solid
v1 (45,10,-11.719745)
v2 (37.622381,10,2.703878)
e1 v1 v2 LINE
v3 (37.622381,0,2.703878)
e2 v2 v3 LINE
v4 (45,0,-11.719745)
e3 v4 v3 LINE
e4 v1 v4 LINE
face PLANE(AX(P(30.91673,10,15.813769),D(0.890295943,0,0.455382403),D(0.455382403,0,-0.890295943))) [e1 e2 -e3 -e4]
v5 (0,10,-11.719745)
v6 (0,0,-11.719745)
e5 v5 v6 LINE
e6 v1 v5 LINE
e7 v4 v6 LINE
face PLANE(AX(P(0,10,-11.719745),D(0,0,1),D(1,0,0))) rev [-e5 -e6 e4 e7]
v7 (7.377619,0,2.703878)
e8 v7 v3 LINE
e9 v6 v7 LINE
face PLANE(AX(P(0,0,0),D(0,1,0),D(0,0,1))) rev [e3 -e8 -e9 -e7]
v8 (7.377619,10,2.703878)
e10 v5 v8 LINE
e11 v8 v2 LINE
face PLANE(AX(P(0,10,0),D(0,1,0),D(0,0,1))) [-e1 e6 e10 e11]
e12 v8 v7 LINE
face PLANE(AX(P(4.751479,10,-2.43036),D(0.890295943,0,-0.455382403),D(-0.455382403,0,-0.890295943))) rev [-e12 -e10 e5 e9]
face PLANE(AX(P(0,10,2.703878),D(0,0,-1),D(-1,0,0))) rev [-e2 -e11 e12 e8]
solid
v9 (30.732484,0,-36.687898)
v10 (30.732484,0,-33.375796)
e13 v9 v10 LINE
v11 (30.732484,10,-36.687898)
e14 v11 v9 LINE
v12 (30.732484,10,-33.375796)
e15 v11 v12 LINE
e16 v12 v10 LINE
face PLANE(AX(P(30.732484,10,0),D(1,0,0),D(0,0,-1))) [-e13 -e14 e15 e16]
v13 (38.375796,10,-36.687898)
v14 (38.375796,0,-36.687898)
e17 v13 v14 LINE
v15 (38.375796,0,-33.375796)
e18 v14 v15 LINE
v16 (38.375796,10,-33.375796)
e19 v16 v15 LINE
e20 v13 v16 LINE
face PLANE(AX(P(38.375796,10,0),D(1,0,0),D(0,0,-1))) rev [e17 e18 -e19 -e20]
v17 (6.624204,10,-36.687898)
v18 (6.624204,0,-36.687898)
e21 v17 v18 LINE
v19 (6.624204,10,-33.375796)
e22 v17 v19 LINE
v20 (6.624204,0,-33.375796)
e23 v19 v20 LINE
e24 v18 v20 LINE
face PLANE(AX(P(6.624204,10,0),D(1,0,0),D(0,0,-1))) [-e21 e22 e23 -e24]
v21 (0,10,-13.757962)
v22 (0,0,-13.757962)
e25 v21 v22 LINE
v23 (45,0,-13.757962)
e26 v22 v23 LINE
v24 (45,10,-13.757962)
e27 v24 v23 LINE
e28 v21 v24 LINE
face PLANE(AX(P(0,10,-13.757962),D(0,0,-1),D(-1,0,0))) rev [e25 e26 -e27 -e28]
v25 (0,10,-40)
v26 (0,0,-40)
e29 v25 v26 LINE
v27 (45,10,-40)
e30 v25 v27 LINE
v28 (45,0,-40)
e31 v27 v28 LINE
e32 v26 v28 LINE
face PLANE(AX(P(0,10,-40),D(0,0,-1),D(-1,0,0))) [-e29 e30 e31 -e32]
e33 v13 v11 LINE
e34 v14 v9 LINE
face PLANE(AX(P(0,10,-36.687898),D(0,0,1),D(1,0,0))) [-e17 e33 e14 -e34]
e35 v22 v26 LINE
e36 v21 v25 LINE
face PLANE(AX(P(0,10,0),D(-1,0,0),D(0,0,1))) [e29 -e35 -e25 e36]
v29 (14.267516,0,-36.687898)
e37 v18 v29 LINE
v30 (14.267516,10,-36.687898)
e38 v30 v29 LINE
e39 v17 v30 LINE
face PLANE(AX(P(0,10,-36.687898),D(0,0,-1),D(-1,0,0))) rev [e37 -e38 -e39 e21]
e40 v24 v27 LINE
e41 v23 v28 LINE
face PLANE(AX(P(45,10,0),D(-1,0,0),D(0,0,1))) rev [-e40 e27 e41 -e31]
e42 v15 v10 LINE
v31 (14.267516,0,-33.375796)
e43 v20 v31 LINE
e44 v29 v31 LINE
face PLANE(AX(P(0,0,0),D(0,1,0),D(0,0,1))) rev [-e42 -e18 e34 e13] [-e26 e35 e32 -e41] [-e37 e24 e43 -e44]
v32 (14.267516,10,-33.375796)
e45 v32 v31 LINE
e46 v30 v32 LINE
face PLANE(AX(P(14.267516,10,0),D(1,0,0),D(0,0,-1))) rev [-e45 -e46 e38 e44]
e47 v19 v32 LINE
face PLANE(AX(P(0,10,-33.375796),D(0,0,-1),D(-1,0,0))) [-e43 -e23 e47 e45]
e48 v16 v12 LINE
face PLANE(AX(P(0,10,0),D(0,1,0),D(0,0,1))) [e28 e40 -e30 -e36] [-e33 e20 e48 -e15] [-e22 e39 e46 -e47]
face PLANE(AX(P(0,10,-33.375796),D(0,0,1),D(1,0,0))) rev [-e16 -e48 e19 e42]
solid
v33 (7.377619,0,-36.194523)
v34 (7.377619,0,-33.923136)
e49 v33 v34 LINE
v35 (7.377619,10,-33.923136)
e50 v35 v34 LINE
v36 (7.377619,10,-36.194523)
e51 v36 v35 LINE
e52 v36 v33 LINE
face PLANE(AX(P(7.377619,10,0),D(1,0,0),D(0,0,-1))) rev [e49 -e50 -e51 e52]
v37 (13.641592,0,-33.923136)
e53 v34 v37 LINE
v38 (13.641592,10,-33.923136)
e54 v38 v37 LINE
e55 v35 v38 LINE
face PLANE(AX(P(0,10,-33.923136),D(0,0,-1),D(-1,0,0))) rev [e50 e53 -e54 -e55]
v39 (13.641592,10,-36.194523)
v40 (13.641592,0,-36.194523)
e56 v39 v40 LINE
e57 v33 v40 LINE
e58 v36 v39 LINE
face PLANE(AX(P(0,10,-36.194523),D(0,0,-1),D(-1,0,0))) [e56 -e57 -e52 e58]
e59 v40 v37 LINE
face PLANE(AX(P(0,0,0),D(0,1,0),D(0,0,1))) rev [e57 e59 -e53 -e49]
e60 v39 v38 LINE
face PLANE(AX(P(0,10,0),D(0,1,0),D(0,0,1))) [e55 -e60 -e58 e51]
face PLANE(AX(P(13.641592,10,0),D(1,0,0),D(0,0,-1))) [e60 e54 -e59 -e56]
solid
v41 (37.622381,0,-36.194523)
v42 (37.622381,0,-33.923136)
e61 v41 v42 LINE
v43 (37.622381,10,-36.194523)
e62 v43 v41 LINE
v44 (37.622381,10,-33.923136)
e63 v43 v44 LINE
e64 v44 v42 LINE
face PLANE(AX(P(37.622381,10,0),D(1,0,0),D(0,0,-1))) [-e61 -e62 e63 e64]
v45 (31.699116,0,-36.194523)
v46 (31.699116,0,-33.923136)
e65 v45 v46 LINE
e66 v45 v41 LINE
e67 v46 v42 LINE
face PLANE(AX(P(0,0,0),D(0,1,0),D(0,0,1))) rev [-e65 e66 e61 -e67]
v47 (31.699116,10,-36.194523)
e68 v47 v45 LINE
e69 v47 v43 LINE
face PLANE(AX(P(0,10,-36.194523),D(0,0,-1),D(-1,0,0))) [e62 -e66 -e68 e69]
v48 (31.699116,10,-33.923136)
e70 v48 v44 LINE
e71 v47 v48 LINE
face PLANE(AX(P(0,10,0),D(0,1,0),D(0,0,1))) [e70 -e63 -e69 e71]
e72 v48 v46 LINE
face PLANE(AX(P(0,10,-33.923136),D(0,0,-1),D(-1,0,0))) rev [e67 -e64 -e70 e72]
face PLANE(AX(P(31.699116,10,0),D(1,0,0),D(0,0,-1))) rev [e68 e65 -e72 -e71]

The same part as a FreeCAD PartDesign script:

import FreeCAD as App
import Part
import Sketcher

V = App.Vector
Q = App.Units.Quantity

doc = App.newDocument("Part")
body = doc.addObject("PartDesign::Body", "Body")

sketch1 = body.newObject("Sketcher::SketchObject", "Sketch")
sketch1.AttachmentSupport = (doc.getObject("XZ_Plane"), [""])
sketch1.MapMode = "FlatFace"
sketch1.addGeometry([
    Part.LineSegment(V(7, 3, 0), V(38, 3, 0)),
    Part.LineSegment(V(38, 3, 0), V(45, -12, 0)),
    Part.LineSegment(V(45, -12, 0), V(0, -12, 0)),
    Part.LineSegment(V(0, -12, 0), V(7, 3, 0)),
], False)
sketch1.addConstraint([
    Sketcher.Constraint("Coincident", 0, 2, 1, 1),
    Sketcher.Constraint("Coincident", 1, 2, 2, 1),
    Sketcher.Constraint("Coincident", 2, 2, 3, 1),
    Sketcher.Constraint("Coincident", 3, 2, 0, 1),
    Sketcher.Constraint("Horizontal", 0),
    Sketcher.Constraint("Horizontal", 2),
    Sketcher.Constraint("PointOnObject", 2, 2, -2),
    Sketcher.Constraint("Equal", 1, 3),
    Sketcher.Constraint("DistanceX", 2, 2, 2, 1, Q("45 mm")),
    Sketcher.Constraint("Distance", 1, Q("16.200931 mm")),
    Sketcher.Constraint("DistanceX", 0, 1, 0, 2, Q("30.244763 mm")),
    Sketcher.Constraint("DistanceY", -1, 1, 0, 2, Q("2.703878 mm")),
])
pad1 = body.newObject("PartDesign::Pad", "Pad")
pad1.Profile = sketch1
pad1.Length = 10
pad1.Reversed = True
body2 = doc.addObject("PartDesign::Body", "Body001")

sketch2 = body2.newObject("Sketcher::SketchObject", "Sketch001")
sketch2.AttachmentSupport = (doc.getObject("XZ_Plane001"), [""])
sketch2.MapMode = "FlatFace"
sketch2.addGeometry([
    Part.LineSegment(V(0, -40, 0), V(0, -13.8, 0)),
    Part.LineSegment(V(0, -13.8, 0), V(45, -13.8, 0)),
    Part.LineSegment(V(45, -13.8, 0), V(45, -40, 0)),
    Part.LineSegment(V(45, -40, 0), V(0, -40, 0)),
    Part.LineSegment(V(14.3, -33.4, 0), V(6.6, -33.4, 0)),
    Part.LineSegment(V(6.6, -33.4, 0), V(6.6, -36.7, 0)),
    Part.LineSegment(V(6.6, -36.7, 0), V(14.3, -36.7, 0)),
    Part.LineSegment(V(14.3, -36.7, 0), V(14.3, -33.4, 0)),
    Part.LineSegment(V(38.4, -33.4, 0), V(30.7, -33.4, 0)),
    Part.LineSegment(V(30.7, -33.4, 0), V(30.7, -36.7, 0)),
    Part.LineSegment(V(30.7, -36.7, 0), V(38.4, -36.7, 0)),
    Part.LineSegment(V(38.4, -36.7, 0), V(38.4, -33.4, 0)),
], False)
sketch2.addConstraint([
    Sketcher.Constraint("Coincident", 0, 2, 1, 1),
    Sketcher.Constraint("Coincident", 1, 2, 2, 1),
    Sketcher.Constraint("Coincident", 2, 2, 3, 1),
    Sketcher.Constraint("Coincident", 3, 2, 0, 1),
    Sketcher.Constraint("Coincident", 4, 2, 5, 1),
    Sketcher.Constraint("Coincident", 5, 2, 6, 1),
    Sketcher.Constraint("Coincident", 6, 2, 7, 1),
    Sketcher.Constraint("Coincident", 7, 2, 4, 1),
    Sketcher.Constraint("Coincident", 8, 2, 9, 1),
    Sketcher.Constraint("Coincident", 9, 2, 10, 1),
    Sketcher.Constraint("Coincident", 10, 2, 11, 1),
    Sketcher.Constraint("Coincident", 11, 2, 8, 1),
    Sketcher.Constraint("Vertical", 0),
    Sketcher.Constraint("Horizontal", 1),
    Sketcher.Constraint("Vertical", 2),
    Sketcher.Constraint("Horizontal", 3),
    Sketcher.Constraint("Horizontal", 4),
    Sketcher.Constraint("Vertical", 5),
    Sketcher.Constraint("Horizontal", 6),
    Sketcher.Constraint("Vertical", 7),
    Sketcher.Constraint("Horizontal", 8),
    Sketcher.Constraint("Vertical", 9),
    Sketcher.Constraint("Horizontal", 10),
    Sketcher.Constraint("Vertical", 11),
    Sketcher.Constraint("PointOnObject", 0, 2, -2),
    Sketcher.Constraint("Horizontal", 7, 2, 8, 2),
    Sketcher.Constraint("Horizontal", 6, 2, 9, 2),
    Sketcher.Constraint("Equal", 6, 8),
    Sketcher.Constraint("DistanceX", 1, 1, 1, 2, Q("45 mm")),
    Sketcher.Constraint("DistanceY", 2, 2, -1, 1, Q("40 mm")),
    Sketcher.Constraint("DistanceY", 5, 2, 5, 1, Q("3.312102 mm")),
    Sketcher.Constraint("DistanceY", 0, 1, 0, 2, Q("26.242038 mm")),
    Sketcher.Constraint("DistanceY", 5, 2, -1, 1, Q("36.687898 mm")),
    Sketcher.Constraint("DistanceX", 4, 2, 4, 1, Q("7.643312 mm")),
    Sketcher.Constraint("DistanceX", 7, 2, 8, 2, Q("16.464968 mm")),
    Sketcher.Constraint("DistanceX", -1, 1, 4, 2, Q("6.624204 mm")),
])
pad2 = body2.newObject("PartDesign::Pad", "Pad001")
pad2.Profile = sketch2
pad2.Length = 10
pad2.Reversed = True
body3 = doc.addObject("PartDesign::Body", "Body002")

sketch3 = body3.newObject("Sketcher::SketchObject", "Sketch002")
sketch3.AttachmentSupport = (doc.getObject("XZ_Plane002"), [""])
sketch3.MapMode = "FlatFace"
sketch3.addGeometry([
    Part.LineSegment(V(7.4, -36.2, 0), V(7.4, -33.9, 0)),
    Part.LineSegment(V(7.4, -33.9, 0), V(13.6, -33.9, 0)),
    Part.LineSegment(V(13.6, -33.9, 0), V(13.6, -36.2, 0)),
    Part.LineSegment(V(13.6, -36.2, 0), V(7.4, -36.2, 0)),
], False)
sketch3.addConstraint([
    Sketcher.Constraint("Coincident", 0, 2, 1, 1),
    Sketcher.Constraint("Coincident", 1, 2, 2, 1),
    Sketcher.Constraint("Coincident", 2, 2, 3, 1),
    Sketcher.Constraint("Coincident", 3, 2, 0, 1),
    Sketcher.Constraint("Vertical", 0),
    Sketcher.Constraint("Horizontal", 1),
    Sketcher.Constraint("Vertical", 2),
    Sketcher.Constraint("Horizontal", 3),
    Sketcher.Constraint("DistanceX", 1, 1, 1, 2, Q("6.263974 mm")),
    Sketcher.Constraint("DistanceY", 0, 1, 0, 2, Q("2.271387 mm")),
    Sketcher.Constraint("DistanceX", -1, 1, 0, 2, Q("7.377619 mm")),
    Sketcher.Constraint("DistanceY", 0, 2, -1, 1, Q("33.923136 mm")),
])
pad3 = body3.newObject("PartDesign::Pad", "Pad002")
pad3.Profile = sketch3
pad3.Length = 10
pad3.Reversed = True
body4 = doc.addObject("PartDesign::Body", "Body003")

sketch4 = body4.newObject("Sketcher::SketchObject", "Sketch003")
sketch4.AttachmentSupport = (doc.getObject("XZ_Plane003"), [""])
sketch4.MapMode = "FlatFace"
sketch4.addGeometry([
    Part.LineSegment(V(31.7, -36.2, 0), V(31.7, -33.9, 0)),
    Part.LineSegment(V(31.7, -33.9, 0), V(37.6, -33.9, 0)),
    Part.LineSegment(V(37.6, -33.9, 0), V(37.6, -36.2, 0)),
    Part.LineSegment(V(37.6, -36.2, 0), V(31.7, -36.2, 0)),
], False)
sketch4.addConstraint([
    Sketcher.Constraint("Coincident", 0, 2, 1, 1),
    Sketcher.Constraint("Coincident", 1, 2, 2, 1),
    Sketcher.Constraint("Coincident", 2, 2, 3, 1),
    Sketcher.Constraint("Coincident", 3, 2, 0, 1),
    Sketcher.Constraint("Vertical", 0),
    Sketcher.Constraint("Horizontal", 1),
    Sketcher.Constraint("Vertical", 2),
    Sketcher.Constraint("Horizontal", 3),
    Sketcher.Constraint("DistanceX", 1, 1, 1, 2, Q("5.923266 mm")),
    Sketcher.Constraint("DistanceY", 0, 1, 0, 2, Q("2.271387 mm")),
    Sketcher.Constraint("DistanceX", -1, 1, 1, 2, Q("37.622381 mm")),
    Sketcher.Constraint("DistanceY", 0, 2, -1, 1, Q("33.923136 mm")),
])
pad4 = body4.newObject("PartDesign::Pad", "Pad003")
pad4.Profile = sketch4
pad4.Length = 10
pad4.Reversed = True

doc.recompute()
